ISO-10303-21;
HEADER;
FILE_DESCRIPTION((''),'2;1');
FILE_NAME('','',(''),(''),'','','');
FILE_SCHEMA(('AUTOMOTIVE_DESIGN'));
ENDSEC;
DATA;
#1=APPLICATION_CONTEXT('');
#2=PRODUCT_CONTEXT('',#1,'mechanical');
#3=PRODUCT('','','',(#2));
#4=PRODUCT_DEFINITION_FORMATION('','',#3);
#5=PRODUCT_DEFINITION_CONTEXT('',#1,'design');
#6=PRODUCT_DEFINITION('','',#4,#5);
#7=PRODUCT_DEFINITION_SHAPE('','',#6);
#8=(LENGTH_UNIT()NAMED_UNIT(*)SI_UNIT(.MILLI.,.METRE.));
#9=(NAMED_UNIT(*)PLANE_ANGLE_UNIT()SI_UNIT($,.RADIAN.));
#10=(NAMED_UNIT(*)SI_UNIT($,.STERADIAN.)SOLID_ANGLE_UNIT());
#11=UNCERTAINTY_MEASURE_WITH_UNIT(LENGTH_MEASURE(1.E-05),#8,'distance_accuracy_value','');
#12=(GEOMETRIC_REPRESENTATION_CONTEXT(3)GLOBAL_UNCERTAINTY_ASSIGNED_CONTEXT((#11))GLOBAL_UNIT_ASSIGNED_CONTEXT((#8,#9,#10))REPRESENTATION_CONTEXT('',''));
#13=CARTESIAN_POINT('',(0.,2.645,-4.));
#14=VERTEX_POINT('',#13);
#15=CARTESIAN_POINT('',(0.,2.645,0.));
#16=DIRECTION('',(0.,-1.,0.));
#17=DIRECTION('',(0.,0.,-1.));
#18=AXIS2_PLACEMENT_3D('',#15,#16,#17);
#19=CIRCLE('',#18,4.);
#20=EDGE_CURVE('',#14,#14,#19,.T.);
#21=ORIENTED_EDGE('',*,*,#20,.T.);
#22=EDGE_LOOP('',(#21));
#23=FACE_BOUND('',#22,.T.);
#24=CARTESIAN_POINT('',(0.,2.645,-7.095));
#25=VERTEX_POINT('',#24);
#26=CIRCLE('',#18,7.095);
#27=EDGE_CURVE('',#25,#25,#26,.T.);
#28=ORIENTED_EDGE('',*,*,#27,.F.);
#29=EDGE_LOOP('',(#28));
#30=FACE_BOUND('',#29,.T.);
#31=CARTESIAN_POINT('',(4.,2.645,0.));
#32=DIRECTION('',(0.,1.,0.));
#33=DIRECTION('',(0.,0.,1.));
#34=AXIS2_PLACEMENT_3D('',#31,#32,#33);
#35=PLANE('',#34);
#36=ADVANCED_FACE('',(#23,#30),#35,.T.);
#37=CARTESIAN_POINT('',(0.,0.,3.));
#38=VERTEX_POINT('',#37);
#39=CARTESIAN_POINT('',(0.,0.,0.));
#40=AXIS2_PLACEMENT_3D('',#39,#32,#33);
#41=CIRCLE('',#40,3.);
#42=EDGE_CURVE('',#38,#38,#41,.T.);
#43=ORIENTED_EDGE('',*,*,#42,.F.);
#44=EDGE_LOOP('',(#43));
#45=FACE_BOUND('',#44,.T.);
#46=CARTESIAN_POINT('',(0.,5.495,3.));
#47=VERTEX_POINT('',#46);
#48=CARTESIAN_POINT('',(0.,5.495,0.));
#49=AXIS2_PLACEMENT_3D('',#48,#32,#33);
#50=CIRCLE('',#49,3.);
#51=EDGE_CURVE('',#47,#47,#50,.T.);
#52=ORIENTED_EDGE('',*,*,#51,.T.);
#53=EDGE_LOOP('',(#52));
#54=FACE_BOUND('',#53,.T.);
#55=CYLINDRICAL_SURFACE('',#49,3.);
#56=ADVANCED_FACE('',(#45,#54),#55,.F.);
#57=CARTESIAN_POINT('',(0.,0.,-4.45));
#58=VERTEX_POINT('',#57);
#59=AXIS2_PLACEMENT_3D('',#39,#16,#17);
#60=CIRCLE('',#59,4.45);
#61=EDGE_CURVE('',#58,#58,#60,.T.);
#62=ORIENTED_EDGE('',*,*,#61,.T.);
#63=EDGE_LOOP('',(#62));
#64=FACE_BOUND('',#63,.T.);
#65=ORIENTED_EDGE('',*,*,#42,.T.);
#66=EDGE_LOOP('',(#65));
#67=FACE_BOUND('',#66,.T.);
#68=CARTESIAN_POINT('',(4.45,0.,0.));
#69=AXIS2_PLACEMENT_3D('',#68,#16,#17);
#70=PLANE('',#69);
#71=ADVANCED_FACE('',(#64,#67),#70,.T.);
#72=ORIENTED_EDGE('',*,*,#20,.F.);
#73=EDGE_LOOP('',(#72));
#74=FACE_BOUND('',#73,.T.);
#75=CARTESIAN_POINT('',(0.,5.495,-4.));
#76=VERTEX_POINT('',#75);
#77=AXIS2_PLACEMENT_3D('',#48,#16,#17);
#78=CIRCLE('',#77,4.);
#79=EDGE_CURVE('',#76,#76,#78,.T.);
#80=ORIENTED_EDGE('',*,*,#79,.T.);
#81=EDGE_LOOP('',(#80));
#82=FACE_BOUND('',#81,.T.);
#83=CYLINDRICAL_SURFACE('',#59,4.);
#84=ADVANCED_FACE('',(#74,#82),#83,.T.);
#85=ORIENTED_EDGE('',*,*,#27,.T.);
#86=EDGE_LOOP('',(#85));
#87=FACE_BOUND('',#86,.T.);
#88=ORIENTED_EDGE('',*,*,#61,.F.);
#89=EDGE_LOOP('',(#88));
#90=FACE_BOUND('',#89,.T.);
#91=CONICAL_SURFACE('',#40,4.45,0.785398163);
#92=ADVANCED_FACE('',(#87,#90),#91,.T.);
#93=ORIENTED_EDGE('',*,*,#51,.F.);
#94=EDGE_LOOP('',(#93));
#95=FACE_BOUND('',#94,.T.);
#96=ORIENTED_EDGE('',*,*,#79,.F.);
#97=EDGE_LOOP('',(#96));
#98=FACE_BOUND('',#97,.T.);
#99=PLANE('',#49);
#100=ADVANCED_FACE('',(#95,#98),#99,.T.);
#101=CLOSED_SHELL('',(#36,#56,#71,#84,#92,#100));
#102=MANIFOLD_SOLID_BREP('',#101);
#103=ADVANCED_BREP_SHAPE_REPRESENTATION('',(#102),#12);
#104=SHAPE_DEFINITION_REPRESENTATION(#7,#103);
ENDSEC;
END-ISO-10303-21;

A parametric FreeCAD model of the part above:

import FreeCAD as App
import Part
import Sketcher
Q = App.Units.Quantity


def add_polygon(sketch, points):
    """Adds a closed chain of lines whose ends are joined by coincident constraints."""
    first, n = sketch.GeometryCount, len(points)
    for a, b in zip(points, points[1:] + points[:1]):
        sketch.addGeometry(Part.LineSegment(App.Vector(*a, 0), App.Vector(*b, 0)), False)
    for i in range(n):
        sketch.addConstraint(Sketcher.Constraint("Coincident", first + i, 2, first + (i + 1) % n, 1))

doc = App.newDocument("Part")
body = doc.addObject("PartDesign::Body", "Body")

# Sketch on XY plane
sketch1 = doc.addObject("Sketcher::SketchObject", "Sketch")
body.addObject(sketch1)
sketch1.AttachmentSupport = (doc.XY_Plane, [""])
sketch1.MapMode = "FlatFace"
add_polygon(sketch1, [(0, 5.5), (0, 0), (4.5, 0), (7.1, 2.6), (4, 2.6), (4, 5.5)])  # lines 0-5
sketch1.addConstraint(Sketcher.Constraint("Vertical", 0))
sketch1.addConstraint(Sketcher.Constraint("Horizontal", 1))
sketch1.addConstraint(Sketcher.Constraint("Horizontal", 3))
sketch1.addConstraint(Sketcher.Constraint("Vertical", 4))
sketch1.addConstraint(Sketcher.Constraint("Horizontal", 5))
sketch1.addConstraint(Sketcher.Constraint("Coincident", 0, 2, -1, 1))
sketch1.addConstraint(Sketcher.Constraint("DistanceX", 5, 2, 5, 1, Q("4 mm")))
sketch1.addConstraint(Sketcher.Constraint("Angle", 2, Q("45 deg")))
sketch1.addConstraint(Sketcher.Constraint("DistanceX", 1, 1, 1, 2, Q("4.45 mm")))
sketch1.addConstraint(Sketcher.Constraint("DistanceY", 4, 1, 4, 2, Q("2.85 mm")))
sketch1.addConstraint(Sketcher.Constraint("DistanceX", 3, 2, 3, 1, Q("3.095 mm")))
revolution = doc.addObject("PartDesign::Revolution", "Revolution")
body.addObject(revolution)
revolution.Profile = sketch1
revolution.ReferenceAxis = (sketch1, ["V_Axis"])
revolution.Angle = 360

# Sketch on XZ plane
sketch2 = doc.addObject("Sketcher::SketchObject", "Sketch001")
body.addObject(sketch2)
sketch2.AttachmentSupport = (doc.XZ_Plane, [""])
sketch2.MapMode = "FlatFace"
sketch2.AttachmentOffset = App.Placement(App.Vector(0, 0, -5.495), App.Rotation())
sketch2.addGeometry(Part.Circle(App.Vector(0, 0, 0), App.Vector(0, 0, 1), 3), False)
sketch2.addConstraint(Sketcher.Constraint("Coincident", 0, 3, -1, 1))
sketch2.addConstraint(Sketcher.Constraint("Diameter", 0, Q("6 mm")))
doc.recompute()
hole = doc.addObject("PartDesign::Hole", "Hole")
body.addObject(hole)
hole.Profile = sketch2
hole.ThreadType = "None"
hole.Diameter = 6
hole.DepthType = "ThroughAll"
hole.Reversed = True

doc.recompute()
